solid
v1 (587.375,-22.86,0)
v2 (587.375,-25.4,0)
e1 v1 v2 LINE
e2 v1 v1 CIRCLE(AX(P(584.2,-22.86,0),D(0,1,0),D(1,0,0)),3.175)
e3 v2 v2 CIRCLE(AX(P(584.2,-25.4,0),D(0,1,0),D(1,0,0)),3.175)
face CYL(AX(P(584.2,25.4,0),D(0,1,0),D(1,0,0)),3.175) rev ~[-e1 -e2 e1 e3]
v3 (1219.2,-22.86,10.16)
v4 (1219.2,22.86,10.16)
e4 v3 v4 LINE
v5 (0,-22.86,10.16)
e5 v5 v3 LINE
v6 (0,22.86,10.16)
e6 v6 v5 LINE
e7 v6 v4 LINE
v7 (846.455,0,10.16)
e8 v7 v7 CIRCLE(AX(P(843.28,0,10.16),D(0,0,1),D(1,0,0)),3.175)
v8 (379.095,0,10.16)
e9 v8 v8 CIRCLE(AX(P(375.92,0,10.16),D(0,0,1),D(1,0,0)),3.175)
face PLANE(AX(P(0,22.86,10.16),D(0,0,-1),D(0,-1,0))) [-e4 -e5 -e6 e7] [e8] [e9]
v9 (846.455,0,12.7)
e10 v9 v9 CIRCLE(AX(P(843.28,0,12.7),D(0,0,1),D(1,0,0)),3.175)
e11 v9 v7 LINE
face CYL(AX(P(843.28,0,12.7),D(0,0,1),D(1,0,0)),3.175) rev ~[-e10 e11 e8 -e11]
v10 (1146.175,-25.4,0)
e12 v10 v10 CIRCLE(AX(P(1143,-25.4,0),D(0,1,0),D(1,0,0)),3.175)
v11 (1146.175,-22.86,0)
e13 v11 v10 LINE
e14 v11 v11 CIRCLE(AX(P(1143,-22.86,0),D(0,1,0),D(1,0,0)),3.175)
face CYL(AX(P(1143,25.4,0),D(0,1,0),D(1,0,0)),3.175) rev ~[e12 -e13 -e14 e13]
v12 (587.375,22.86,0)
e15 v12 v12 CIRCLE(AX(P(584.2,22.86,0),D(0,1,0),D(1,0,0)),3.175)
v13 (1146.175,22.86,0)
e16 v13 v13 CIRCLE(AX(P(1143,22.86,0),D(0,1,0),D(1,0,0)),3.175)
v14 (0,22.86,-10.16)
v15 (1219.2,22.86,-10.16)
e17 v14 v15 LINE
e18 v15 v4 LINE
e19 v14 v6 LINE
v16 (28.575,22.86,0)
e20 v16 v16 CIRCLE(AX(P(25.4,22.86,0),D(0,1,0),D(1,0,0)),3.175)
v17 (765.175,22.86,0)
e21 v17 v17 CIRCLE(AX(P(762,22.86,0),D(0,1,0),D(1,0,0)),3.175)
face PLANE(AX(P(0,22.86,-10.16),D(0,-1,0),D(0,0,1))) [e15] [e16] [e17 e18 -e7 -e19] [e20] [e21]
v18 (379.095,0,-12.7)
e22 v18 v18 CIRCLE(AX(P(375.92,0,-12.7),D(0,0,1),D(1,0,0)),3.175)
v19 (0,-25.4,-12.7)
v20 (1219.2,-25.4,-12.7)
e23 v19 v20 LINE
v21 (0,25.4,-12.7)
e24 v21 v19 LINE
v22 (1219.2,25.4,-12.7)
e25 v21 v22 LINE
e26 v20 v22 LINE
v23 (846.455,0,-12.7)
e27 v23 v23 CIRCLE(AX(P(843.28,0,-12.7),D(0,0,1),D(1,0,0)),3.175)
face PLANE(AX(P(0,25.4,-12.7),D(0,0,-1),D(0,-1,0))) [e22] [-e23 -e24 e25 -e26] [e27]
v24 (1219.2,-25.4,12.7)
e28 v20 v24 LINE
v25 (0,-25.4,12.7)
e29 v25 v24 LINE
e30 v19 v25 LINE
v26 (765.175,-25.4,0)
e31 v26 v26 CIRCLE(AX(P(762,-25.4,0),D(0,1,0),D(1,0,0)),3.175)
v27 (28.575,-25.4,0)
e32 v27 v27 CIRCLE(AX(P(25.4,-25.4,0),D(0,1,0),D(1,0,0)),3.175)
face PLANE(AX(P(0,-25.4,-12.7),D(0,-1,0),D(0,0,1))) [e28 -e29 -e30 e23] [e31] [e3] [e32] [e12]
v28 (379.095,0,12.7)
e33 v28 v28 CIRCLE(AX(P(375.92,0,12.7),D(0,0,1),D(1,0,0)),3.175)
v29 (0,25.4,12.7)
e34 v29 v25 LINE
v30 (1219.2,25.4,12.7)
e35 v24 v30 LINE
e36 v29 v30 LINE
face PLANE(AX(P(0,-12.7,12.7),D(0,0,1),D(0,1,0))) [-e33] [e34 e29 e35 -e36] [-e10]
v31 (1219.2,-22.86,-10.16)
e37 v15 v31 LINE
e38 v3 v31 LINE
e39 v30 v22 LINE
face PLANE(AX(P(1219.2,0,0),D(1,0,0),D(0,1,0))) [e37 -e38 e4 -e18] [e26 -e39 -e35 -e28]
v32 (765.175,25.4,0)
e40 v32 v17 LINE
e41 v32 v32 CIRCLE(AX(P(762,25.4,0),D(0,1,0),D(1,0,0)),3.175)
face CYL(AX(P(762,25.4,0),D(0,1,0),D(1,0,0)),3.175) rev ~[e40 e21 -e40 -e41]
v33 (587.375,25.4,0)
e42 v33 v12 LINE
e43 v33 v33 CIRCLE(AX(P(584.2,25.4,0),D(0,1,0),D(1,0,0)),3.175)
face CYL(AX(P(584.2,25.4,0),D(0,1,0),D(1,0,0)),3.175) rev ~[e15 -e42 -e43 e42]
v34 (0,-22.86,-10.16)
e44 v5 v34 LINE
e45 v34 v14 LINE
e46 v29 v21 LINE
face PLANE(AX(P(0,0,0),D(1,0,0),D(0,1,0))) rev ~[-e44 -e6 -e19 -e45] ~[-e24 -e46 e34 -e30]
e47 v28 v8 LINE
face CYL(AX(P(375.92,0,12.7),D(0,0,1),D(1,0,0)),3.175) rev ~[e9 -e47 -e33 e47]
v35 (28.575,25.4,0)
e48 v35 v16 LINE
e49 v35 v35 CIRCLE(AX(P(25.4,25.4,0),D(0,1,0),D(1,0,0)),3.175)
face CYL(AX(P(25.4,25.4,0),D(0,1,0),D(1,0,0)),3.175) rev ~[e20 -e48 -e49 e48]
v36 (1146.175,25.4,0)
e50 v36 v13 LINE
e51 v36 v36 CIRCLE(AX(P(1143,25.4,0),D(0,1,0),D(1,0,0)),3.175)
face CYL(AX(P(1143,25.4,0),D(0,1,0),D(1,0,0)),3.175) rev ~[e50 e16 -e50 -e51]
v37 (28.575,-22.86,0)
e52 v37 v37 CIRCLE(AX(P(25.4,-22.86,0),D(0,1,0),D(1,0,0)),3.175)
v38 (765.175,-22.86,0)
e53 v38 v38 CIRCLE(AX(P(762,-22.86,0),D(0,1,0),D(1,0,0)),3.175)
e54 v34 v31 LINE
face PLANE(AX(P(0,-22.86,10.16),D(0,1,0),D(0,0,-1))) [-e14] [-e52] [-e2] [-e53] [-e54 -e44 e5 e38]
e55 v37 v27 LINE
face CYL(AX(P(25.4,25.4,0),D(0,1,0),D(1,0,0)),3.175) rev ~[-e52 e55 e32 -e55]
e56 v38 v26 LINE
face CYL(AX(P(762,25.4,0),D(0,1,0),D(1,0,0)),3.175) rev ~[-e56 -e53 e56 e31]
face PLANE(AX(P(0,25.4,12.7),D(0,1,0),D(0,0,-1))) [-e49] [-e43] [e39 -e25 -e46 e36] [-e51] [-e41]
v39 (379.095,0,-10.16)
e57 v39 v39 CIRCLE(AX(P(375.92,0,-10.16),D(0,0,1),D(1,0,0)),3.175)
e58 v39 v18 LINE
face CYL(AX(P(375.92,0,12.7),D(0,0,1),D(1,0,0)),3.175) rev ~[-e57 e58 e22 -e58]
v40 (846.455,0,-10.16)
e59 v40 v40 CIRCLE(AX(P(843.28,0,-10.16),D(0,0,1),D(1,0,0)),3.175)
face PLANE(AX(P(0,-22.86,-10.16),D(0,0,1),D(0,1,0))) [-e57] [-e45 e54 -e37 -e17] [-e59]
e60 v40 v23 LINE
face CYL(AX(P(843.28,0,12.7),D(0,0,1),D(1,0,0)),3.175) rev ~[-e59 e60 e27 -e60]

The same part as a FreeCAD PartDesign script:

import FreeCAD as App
import Part
import Sketcher

V = App.Vector
Q = App.Units.Quantity


def add_polygon(sketch, points):
    """Adds a closed chain of lines whose ends are joined by coincident constraints."""
    first, n = sketch.GeometryCount, len(points)
    for a, b in zip(points, points[1:] + points[:1]):
        sketch.addGeometry(Part.LineSegment(App.Vector(*a, 0), App.Vector(*b, 0)), False)
    for i in range(n):
        sketch.addConstraint(Sketcher.Constraint("Coincident", first + i, 2, first + (i + 1) % n, 1))

doc = App.newDocument("Part")
params = doc.addObject("Spreadsheet::Sheet", "Params")
for row, (alias, value) in enumerate([
    ("sketch1_width", "2 in"),
    ("sketch1_height", "1 in"),
    ("pad1_length", "48 in"),
    ("sketch2_diameter", "0.25 in"),
    ("sketch3_diameter", "0.25 in"),
], start=1):
    params.set(f"A{row}", alias)
    params.set(f"B{row}", "=" + value)
    params.setAlias(f"B{row}", alias)

body = doc.addObject("PartDesign::Body", "Body")

sketch1 = body.newObject("Sketcher::SketchObject", "Sketch")
sketch1.AttachmentSupport = (doc.getObject("YZ_Plane"), [""])
sketch1.MapMode = "FlatFace"
add_polygon(sketch1, [(25.4, 12.7), (-25.4, 12.7), (-25.4, -12.7), (25.4, -12.7)])
add_polygon(sketch1, [(22.86, 10.16), (22.86, -10.16), (-22.86, -10.16), (-22.86, 10.16)])
sketch1.addConstraint(Sketcher.Constraint("Horizontal", 0))
sketch1.addConstraint(Sketcher.Constraint("Vertical", 1))
sketch1.addConstraint(Sketcher.Constraint("Horizontal", 2))
sketch1.addConstraint(Sketcher.Constraint("Vertical", 3))
sketch1.addConstraint(Sketcher.Constraint("Vertical", 4))
sketch1.addConstraint(Sketcher.Constraint("Horizontal", 5))
sketch1.addConstraint(Sketcher.Constraint("Vertical", 6))
sketch1.addConstraint(Sketcher.Constraint("Horizontal", 7))
sketch1.addConstraint(Sketcher.Constraint("Symmetric", 0, 2, 2, 2, -1, 1))
sketch1.addConstraint(Sketcher.Constraint("Symmetric", 4, 2, 6, 2, -1, 1))
sketch1.addConstraint(Sketcher.Constraint("DistanceX", 0, 2, 0, 1, Q("2 in")))
sketch1.addConstraint(Sketcher.Constraint("DistanceY", 1, 2, 1, 1, Q("1 in")))
sketch1.addConstraint(Sketcher.Constraint("DistanceX", 4, 2, 2, 2, Q("0.1 in")))
sketch1.addConstraint(Sketcher.Constraint("DistanceY", 2, 2, 4, 2, Q("0.1 in")))
sketch1.setExpression("Constraints[18]", "Params.sketch1_width")
sketch1.setExpression("Constraints[19]", "Params.sketch1_height")
pad1 = body.newObject("PartDesign::Pad", "Pad")
pad1.Profile = sketch1
pad1.setExpression("Length", "Params.pad1_length")

sketch2 = body.newObject("Sketcher::SketchObject", "Sketch001")
sketch2.AttachmentSupport = (doc.getObject("XY_Plane"), [""])
sketch2.MapMode = "FlatFace"
sketch2.AttachmentOffset = App.Placement(V(0, 0, 0.5 * 25.4), App.Rotation())
sketch2.addGeometry(Part.Circle(V(843.28, 0, 0), V(0, 0, 1), 3.175), False)
sketch2.addGeometry(Part.Circle(V(375.92, 0, 0), V(0, 0, 1), 3.175), False)
sketch2.addConstraint(Sketcher.Constraint("Equal", 0, 1))
sketch2.addConstraint(Sketcher.Constraint("PointOnObject", 0, 3, -1))
sketch2.addConstraint(Sketcher.Constraint("PointOnObject", 1, 3, -1))
sketch2.addConstraint(Sketcher.Constraint("Diameter", 0, Q("0.25 in")))
sketch2.addConstraint(Sketcher.Constraint("DistanceX", -1, 1, 0, 3, Q("33.2 in")))
sketch2.addConstraint(Sketcher.Constraint("DistanceX", -1, 1, 1, 3, Q("14.8 in")))
sketch2.setExpression("Constraints[3]", "Params.sketch2_diameter")
pocket1 = body.newObject("PartDesign::Pocket", "Pocket")
pocket1.Profile = sketch2
pocket1.Type = "ThroughAll"

sketch3 = body.newObject("Sketcher::SketchObject", "Sketch002")
sketch3.AttachmentSupport = (doc.getObject("XZ_Plane"), [""])
sketch3.MapMode = "FlatFace"
sketch3.AttachmentOffset = App.Placement(V(0, 0, -1 * 25.4), App.Rotation())
sketch3.addGeometry(Part.Circle(V(25.4, 0, 0), V(0, 0, 1), 3.175), False)
sketch3.addGeometry(Part.Circle(V(1143, 0, 0), V(0, 0, 1), 3.175), False)
sketch3.addGeometry(Part.Circle(V(762, 0, 0), V(0, 0, 1), 3.175), False)
sketch3.addGeometry(Part.Circle(V(584.2, 0, 0), V(0, 0, 1), 3.175), False)
sketch3.addConstraint(Sketcher.Constraint("Equal", 0, 1))
sketch3.addConstraint(Sketcher.Constraint("Equal", 1, 2))
sketch3.addConstraint(Sketcher.Constraint("Equal", 2, 3))
sketch3.addConstraint(Sketcher.Constraint("PointOnObject", 0, 3, -1))
sketch3.addConstraint(Sketcher.Constraint("PointOnObject", 1, 3, -1))
sketch3.addConstraint(Sketcher.Constraint("PointOnObject", 2, 3, -1))
sketch3.addConstraint(Sketcher.Constraint("PointOnObject", 3, 3, -1))
sketch3.addConstraint(Sketcher.Constraint("Diameter", 0, Q("0.25 in")))
sketch3.addConstraint(Sketcher.Constraint("DistanceX", -1, 1, 0, 3, Q("1 in")))
sketch3.addConstraint(Sketcher.Constraint("DistanceX", 2, 3, 1, 3, Q("15 in")))
sketch3.addConstraint(Sketcher.Constraint("DistanceX", -1, 1, 1, 3, Q("45 in")))
sketch3.addConstraint(Sketcher.Constraint("DistanceX", -1, 1, 3, 3, Q("23 in")))
sketch3.setExpression("Constraints[7]", "Params.sketch3_diameter")
pocket2 = body.newObject("PartDesign::Pocket", "Pocket001")
pocket2.Profile = sketch3
pocket2.Type = "ThroughAll"
pocket2.Reversed = True

doc.recompute()
